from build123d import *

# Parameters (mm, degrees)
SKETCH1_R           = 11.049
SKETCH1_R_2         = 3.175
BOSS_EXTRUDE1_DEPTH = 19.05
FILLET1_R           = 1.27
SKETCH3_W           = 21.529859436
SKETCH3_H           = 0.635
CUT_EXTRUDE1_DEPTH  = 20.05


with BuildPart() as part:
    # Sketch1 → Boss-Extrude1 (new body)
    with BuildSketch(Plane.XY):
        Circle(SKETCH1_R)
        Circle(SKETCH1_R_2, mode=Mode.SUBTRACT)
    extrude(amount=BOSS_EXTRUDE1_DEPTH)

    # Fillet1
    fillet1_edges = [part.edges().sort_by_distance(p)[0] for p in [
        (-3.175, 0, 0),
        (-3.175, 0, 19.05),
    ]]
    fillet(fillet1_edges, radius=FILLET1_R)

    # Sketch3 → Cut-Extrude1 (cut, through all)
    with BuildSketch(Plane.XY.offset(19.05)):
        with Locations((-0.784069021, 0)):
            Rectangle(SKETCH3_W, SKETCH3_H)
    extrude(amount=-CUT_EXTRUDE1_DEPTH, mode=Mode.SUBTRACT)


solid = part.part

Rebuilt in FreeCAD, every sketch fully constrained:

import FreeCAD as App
import Part
import Sketcher
Q = App.Units.Quantity


def edges_at(feature, points):
    """Names of the edges that pass closest to the given points."""
    edges = feature.Shape.Edges
    near = lambda p: min(range(len(edges)), key=lambda i: edges[i].distToShape(Part.Vertex(*p))[0])
    return sorted({f"Edge{near(p) + 1}" for p in points})


def add_polygon(sketch, points):
    """Adds a closed chain of lines whose ends are joined by coincident constraints."""
    first, n = sketch.GeometryCount, len(points)
    for a, b in zip(points, points[1:] + points[:1]):
        sketch.addGeometry(Part.LineSegment(App.Vector(*a, 0), App.Vector(*b, 0)), False)
    for i in range(n):
        sketch.addConstraint(Sketcher.Constraint("Coincident", first + i, 2, first + (i + 1) % n, 1))

doc = App.newDocument("Part")
body = doc.addObject("PartDesign::Body", "Body")

# Sketch on XY plane
sketch1 = body.newObject("Sketcher::SketchObject", "Sketch")
sketch1.AttachmentSupport = (doc.getObject("XY_Plane"), [""])
sketch1.MapMode = "FlatFace"
sketch1.addGeometry([
    Part.Circle(App.Vector(0, 0, 0), App.Vector(0, 0, 1), 11),
    Part.Circle(App.Vector(0, 0, 0), App.Vector(0, 0, 1), 3.2),
], False)
sketch1.addConstraint([
    Sketcher.Constraint("Coincident", 0, 3, -1, 1),
    Sketcher.Constraint("Coincident", 1, 3, -1, 1),
    Sketcher.Constraint("Diameter", 0, Q("0.87 in")),
    Sketcher.Constraint("Diameter", 1, Q("0.25 in")),
])
pad1 = body.newObject("PartDesign::Pad", "Pad")
pad1.Profile = sketch1
pad1.Length = Q("0.75 in")
doc.recompute()

fillet = body.newObject("PartDesign::Fillet", "Fillet")
fillet.Base = (pad1, edges_at(pad1, [(-3.175, 0, 0), (-3.175, 0, 19.05)]))
fillet.Radius = Q("0.05 in")

# Sketch on XY plane
sketch2 = body.newObject("Sketcher::SketchObject", "Sketch001")
sketch2.AttachmentSupport = (doc.getObject("XY_Plane"), [""])
sketch2.MapMode = "FlatFace"
sketch2.AttachmentOffset = App.Placement(App.Vector(0, 0, 0.75 * 25.4), App.Rotation())
add_polygon(sketch2, [(-11.5, 0.3), (-11.5, -0.3), (10, -0.3), (10, 0.3)])  # lines 0-3
sketch2.addConstraint([
    Sketcher.Constraint("Vertical", 0),
    Sketcher.Constraint("Horizontal", 1),
    Sketcher.Constraint("Vertical", 2),
    Sketcher.Constraint("Horizontal", 3),
    Sketcher.Constraint("DistanceY", 0, 2, 0, 1, Q("0.025 in")),
    Sketcher.Constraint("DistanceY", 0, 2, -1, 1, Q("0.0125 in")),
    Sketcher.Constraint("DistanceX", 1, 1, 1, 2, Q("21.529859 mm")),
    Sketcher.Constraint("DistanceX", 0, 2, -1, 1, Q("11.548999 mm")),
])
pocket1 = body.newObject("PartDesign::Pocket", "Pocket")
pocket1.Profile = sketch2
pocket1.Type = "ThroughAll"

doc.recompute()
